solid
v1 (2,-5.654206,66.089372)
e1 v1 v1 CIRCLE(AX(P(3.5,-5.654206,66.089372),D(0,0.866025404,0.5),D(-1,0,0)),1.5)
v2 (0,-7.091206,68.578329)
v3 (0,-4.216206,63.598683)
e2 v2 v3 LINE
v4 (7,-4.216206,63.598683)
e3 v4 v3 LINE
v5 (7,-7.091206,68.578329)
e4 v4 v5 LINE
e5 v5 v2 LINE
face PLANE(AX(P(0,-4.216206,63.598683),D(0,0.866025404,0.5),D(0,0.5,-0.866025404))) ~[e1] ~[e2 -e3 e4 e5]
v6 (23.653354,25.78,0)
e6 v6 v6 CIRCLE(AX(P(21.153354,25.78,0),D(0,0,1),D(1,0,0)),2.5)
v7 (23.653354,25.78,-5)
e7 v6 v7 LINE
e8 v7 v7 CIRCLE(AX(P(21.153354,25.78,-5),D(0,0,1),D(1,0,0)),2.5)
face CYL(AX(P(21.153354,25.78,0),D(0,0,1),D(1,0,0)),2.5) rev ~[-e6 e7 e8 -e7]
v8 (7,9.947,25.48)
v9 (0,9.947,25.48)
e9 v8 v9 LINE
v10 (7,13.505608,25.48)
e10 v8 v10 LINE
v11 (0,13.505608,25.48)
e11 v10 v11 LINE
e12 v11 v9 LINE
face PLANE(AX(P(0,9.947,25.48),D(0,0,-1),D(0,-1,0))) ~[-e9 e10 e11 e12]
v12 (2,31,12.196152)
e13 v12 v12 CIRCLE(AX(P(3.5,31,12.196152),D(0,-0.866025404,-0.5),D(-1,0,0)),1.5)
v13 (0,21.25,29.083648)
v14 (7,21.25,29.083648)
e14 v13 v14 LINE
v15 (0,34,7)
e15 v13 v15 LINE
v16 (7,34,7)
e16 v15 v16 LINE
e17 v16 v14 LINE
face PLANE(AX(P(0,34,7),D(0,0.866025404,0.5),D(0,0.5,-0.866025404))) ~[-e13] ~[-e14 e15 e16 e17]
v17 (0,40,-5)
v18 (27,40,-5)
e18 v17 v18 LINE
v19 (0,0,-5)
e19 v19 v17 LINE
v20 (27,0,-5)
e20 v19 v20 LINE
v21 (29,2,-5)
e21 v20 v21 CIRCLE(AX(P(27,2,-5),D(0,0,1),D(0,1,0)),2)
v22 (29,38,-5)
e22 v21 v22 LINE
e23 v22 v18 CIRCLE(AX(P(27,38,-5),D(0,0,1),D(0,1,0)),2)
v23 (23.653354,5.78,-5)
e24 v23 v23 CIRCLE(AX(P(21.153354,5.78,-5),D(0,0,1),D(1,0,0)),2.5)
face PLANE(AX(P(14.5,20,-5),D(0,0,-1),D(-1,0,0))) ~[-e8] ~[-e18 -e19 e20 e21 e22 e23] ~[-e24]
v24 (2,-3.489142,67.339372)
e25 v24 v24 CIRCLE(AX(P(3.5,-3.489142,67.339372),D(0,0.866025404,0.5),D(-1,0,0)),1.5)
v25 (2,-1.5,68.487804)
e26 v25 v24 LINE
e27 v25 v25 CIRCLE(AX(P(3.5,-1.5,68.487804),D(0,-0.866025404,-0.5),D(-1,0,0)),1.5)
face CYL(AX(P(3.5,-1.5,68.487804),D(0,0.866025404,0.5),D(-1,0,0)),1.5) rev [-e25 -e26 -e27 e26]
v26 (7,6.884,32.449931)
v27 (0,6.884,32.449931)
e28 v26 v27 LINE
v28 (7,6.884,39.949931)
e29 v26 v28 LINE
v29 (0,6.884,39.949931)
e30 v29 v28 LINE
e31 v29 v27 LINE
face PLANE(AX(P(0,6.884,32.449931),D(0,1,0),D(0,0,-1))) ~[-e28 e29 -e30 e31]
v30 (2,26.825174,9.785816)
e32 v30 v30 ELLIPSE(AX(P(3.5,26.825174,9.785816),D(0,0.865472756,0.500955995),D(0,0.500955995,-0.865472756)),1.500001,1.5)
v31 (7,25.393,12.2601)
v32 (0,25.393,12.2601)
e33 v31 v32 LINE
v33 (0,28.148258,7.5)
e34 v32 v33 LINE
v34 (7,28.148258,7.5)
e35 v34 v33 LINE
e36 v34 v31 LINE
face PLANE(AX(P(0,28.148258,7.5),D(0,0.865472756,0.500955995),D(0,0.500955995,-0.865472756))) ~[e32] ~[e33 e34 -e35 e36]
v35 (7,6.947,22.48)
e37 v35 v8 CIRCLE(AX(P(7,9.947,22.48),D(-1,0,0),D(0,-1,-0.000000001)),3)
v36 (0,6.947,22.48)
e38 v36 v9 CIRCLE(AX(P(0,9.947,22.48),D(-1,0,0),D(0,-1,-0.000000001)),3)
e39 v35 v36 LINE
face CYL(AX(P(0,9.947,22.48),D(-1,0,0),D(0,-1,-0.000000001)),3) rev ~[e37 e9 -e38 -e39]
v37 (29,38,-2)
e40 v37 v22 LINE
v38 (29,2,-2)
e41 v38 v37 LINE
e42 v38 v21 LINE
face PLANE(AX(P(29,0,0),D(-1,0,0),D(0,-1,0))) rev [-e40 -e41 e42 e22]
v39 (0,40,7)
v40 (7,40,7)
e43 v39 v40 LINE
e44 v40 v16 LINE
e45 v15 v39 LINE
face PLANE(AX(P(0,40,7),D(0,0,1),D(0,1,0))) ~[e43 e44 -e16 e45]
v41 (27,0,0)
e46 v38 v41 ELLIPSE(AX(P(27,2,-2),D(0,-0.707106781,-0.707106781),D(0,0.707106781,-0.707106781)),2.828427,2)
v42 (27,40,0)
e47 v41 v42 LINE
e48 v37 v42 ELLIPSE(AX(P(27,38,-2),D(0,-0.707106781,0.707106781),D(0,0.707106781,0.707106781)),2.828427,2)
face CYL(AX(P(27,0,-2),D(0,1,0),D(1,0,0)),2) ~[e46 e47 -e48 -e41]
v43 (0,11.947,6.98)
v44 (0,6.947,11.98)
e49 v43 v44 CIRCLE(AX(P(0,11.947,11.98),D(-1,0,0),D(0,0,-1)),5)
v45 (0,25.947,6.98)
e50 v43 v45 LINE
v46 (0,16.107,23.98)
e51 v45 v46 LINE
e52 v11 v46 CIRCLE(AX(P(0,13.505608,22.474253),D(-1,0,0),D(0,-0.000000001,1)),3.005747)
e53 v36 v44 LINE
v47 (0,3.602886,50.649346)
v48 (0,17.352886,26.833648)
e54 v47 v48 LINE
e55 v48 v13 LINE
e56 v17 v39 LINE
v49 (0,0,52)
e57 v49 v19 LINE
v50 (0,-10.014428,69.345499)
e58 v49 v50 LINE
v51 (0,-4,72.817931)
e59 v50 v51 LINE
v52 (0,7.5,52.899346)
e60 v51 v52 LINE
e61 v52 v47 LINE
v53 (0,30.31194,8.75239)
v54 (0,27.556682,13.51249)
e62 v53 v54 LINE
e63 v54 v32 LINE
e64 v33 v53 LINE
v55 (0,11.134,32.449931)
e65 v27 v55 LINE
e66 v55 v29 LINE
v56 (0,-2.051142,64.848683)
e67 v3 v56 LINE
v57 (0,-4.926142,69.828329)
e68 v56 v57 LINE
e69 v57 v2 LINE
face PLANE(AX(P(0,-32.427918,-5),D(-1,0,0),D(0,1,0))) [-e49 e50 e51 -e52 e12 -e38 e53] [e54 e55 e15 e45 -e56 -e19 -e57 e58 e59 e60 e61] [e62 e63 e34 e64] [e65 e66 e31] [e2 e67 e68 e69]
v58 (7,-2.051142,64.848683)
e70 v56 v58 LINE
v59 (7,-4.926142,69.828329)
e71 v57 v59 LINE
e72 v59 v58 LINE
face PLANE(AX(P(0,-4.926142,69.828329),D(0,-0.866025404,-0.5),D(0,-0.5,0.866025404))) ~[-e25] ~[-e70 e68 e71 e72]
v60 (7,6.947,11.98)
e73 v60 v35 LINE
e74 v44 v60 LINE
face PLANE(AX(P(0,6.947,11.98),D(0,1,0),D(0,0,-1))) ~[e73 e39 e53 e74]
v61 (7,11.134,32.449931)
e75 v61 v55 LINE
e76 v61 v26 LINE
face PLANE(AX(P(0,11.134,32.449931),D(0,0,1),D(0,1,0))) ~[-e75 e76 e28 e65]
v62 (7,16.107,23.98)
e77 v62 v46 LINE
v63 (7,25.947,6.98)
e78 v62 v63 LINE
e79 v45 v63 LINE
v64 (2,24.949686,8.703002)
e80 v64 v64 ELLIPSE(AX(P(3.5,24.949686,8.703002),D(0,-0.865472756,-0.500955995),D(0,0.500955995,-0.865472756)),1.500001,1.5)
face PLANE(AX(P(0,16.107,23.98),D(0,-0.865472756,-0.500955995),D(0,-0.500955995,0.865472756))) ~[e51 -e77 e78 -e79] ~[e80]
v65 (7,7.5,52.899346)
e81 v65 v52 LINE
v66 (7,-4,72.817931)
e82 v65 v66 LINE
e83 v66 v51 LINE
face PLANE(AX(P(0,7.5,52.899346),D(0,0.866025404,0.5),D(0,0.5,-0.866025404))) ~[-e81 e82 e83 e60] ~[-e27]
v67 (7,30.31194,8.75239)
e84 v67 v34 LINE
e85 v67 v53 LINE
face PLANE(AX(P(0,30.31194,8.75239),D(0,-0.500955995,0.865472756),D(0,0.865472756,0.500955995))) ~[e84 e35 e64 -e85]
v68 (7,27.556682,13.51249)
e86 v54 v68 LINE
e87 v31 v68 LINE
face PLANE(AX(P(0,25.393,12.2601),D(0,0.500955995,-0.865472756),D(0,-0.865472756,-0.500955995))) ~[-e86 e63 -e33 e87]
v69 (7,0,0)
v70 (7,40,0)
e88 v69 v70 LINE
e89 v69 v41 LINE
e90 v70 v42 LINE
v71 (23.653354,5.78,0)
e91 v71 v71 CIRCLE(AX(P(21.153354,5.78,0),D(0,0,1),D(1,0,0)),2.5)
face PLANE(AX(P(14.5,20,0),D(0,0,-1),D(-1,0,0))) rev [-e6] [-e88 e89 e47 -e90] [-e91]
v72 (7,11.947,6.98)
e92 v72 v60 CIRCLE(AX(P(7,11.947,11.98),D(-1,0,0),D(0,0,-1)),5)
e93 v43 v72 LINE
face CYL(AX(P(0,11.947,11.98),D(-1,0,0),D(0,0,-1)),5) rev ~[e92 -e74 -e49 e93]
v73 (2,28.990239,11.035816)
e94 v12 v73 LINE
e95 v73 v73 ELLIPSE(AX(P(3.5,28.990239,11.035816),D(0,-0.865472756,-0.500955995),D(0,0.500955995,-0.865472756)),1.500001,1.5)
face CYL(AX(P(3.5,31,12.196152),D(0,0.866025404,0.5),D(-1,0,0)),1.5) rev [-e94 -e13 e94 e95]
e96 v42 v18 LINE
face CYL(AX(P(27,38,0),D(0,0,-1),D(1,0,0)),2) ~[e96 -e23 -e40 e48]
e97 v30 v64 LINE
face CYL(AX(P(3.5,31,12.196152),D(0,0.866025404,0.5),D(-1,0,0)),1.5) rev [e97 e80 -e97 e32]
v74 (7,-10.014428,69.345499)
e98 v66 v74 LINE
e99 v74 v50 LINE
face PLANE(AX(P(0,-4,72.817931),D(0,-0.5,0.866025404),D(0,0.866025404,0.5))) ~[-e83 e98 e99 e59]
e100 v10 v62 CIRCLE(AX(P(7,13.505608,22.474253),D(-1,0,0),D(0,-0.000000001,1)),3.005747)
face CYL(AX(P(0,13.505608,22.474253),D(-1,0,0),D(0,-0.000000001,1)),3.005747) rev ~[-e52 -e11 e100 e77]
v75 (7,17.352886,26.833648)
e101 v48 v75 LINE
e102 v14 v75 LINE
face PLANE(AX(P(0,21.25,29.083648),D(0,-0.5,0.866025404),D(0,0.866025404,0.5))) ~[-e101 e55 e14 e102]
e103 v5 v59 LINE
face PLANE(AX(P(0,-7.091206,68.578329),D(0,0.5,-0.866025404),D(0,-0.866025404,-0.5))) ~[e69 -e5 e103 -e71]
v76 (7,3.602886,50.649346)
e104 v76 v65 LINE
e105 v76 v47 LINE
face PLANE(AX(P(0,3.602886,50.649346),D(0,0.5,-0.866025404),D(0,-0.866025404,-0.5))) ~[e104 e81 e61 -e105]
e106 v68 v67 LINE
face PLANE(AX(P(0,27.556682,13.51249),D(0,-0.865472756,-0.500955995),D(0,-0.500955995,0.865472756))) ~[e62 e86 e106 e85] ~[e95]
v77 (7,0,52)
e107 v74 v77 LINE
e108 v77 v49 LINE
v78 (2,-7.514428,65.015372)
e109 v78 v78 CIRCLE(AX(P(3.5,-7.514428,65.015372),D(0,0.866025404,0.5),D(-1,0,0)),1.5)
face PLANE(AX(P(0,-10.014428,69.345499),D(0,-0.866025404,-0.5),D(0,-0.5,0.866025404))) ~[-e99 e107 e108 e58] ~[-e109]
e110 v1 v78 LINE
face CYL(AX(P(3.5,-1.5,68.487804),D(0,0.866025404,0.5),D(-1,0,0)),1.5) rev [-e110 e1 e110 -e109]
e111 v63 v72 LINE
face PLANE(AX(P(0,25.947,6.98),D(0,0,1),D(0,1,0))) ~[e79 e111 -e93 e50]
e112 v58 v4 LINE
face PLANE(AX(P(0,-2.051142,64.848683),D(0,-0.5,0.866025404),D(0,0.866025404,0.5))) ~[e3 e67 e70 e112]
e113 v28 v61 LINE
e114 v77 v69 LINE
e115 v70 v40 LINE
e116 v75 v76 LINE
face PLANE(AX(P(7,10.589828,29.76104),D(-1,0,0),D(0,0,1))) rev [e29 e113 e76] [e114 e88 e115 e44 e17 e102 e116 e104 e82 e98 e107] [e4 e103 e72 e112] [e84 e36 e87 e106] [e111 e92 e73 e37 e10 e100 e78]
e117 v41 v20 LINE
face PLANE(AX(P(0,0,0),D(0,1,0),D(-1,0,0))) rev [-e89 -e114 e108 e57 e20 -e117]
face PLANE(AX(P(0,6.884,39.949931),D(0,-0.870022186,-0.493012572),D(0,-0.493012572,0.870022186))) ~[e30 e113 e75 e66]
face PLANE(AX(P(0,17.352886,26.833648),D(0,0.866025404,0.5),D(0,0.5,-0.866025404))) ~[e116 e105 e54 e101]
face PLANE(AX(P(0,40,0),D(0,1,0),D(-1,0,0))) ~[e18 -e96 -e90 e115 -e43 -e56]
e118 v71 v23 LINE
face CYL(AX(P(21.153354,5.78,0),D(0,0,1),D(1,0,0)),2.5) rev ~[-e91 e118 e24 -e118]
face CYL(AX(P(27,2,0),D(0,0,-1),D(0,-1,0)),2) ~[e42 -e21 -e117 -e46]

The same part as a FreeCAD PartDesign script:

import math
import FreeCAD as App
import Part
import Sketcher

V = App.Vector
Q = App.Units.Quantity


def edges_at(feature, points):
    """Names of the edges that pass closest to the given points."""
    edges = feature.Shape.Edges
    near = lambda p: min(range(len(edges)), key=lambda i: edges[i].distToShape(Part.Vertex(*p))[0])
    return sorted({f"Edge{near(p) + 1}" for p in points})


def add_polygon(sketch, points):
    """Adds a closed chain of lines whose ends are joined by coincident constraints."""
    first, n = sketch.GeometryCount, len(points)
    for a, b in zip(points, points[1:] + points[:1]):
        sketch.addGeometry(Part.LineSegment(App.Vector(*a, 0), App.Vector(*b, 0)), False)
    for i in range(n):
        sketch.addConstraint(Sketcher.Constraint("Coincident", first + i, 2, first + (i + 1) % n, 1))

doc = App.newDocument("Part")
params = doc.addObject("Spreadsheet::Sheet", "Params")
for row, (alias, value) in enumerate([
    ("sketch1_radius", "5 mm"),
    ("sketch1_radius2", "3 mm"),
    ("sketch1_width", "40 mm"),
    ("sketch1_width2", "6 mm"),
    ("sketch1_width3", "14 mm"),
    ("pad1_length", "7 mm"),
    ("sketch2_diameter", "5 mm"),
    ("sketch2_width", "29 mm"),
    ("sketch2_height", "40 mm"),
    ("pad2_length", "5 mm"),
    ("fillet_radius", "2 mm"),
    ("sketch3_diameter", "3 mm"),
    ("pocket1_length", "7.5 mm"),
    ("fillet2_radius", "2 mm"),
], start=1):
    params.set(f"A{row}", alias)
    params.set(f"B{row}", "=" + value)
    params.setAlias(f"B{row}", alias)

body = doc.addObject("PartDesign::Body", "Body")

# Sketch on YZ plane
sketch1 = doc.addObject("Sketcher::SketchObject", "Sketch")
body.addObject(sketch1)
sketch1.AttachmentSupport = (doc.YZ_Plane, [""])
sketch1.MapMode = "FlatFace"
add_polygon(sketch1, [(0, 0), (40, 0), (40, 7), (34, 7), (21.2, 29.1), (17.4, 26.8), (3.6, 50.6), (7.5, 52.9), (-4, 72.8), (-10, 69.3), (0, 52)])  # lines 0-10
add_polygon(sketch1, [(-7.1, 68.6), (-4.9, 69.8), (-2.1, 64.8), (-4.2, 63.6)])  # lines 11-14
add_polygon(sketch1, [(6.9, 32.4), (6.9, 39.9), (11.1, 32.4)])  # lines 15-17
sketch1.addGeometry(Part.LineSegment(V(16.1, 24, 0), V(25.9, 7, 0)), False)  # 18
sketch1.addGeometry(Part.LineSegment(V(25.9, 7, 0), V(11.9, 7, 0)), False)  # 19
sketch1.addGeometry(Part.ArcOfCircle(Part.Circle(V(11.9, 12, 0), V(0, 0, 1), 5), math.radians(180), math.radians(270)), False)  # 20
sketch1.addGeometry(Part.LineSegment(V(6.9, 12, 0), V(6.9, 22.5, 0)), False)  # 21
sketch1.addGeometry(Part.ArcOfCircle(Part.Circle(V(9.9, 22.5, 0), V(0, 0, 1), 3), math.radians(90), math.radians(180)), False)  # 22
sketch1.addGeometry(Part.LineSegment(V(9.9, 25.5, 0), V(13.5, 25.5, 0)), False)  # 23
sketch1.addGeometry(Part.ArcOfCircle(Part.Circle(V(13.5, 22.5, 0), V(0, 0, 1), 3), math.radians(30), math.radians(90)), False)  # 24
add_polygon(sketch1, [(25.4, 12.3), (27.6, 13.5), (30.3, 8.8), (28.1, 7.5)])  # lines 25-28
sketch1.addConstraint([
    Sketcher.Constraint("Coincident", 18, 2, 19, 1),
    Sketcher.Constraint("Tangent", 19, 2, 20, 2),
    Sketcher.Constraint("Tangent", 20, 1, 21, 1),
    Sketcher.Constraint("Tangent", 21, 2, 22, 2),
    Sketcher.Constraint("Tangent", 22, 1, 23, 1),
    Sketcher.Constraint("Tangent", 23, 2, 24, 2),
    Sketcher.Constraint("Tangent", 24, 1, 18, 1),
    Sketcher.Constraint("Horizontal", 0),
    Sketcher.Constraint("Vertical", 1),
    Sketcher.Constraint("Horizontal", 2),
    Sketcher.Constraint("Vertical", 10),
    Sketcher.Constraint("Vertical", 15),
    Sketcher.Constraint("Horizontal", 17),
    Sketcher.Constraint("Horizontal", 19),
    Sketcher.Constraint("Vertical", 21),
    Sketcher.Constraint("Horizontal", 23),
    Sketcher.Constraint("Coincident", 10, 2, -1, 1),
    Sketcher.Constraint("Perpendicular", 3, 4),
    Sketcher.Constraint("Perpendicular", 4, 5),
    Sketcher.Constraint("Perpendicular", 5, 6),
    Sketcher.Constraint("Perpendicular", 6, 7),
    Sketcher.Constraint("Perpendicular", 7, 8),
    Sketcher.Constraint("Perpendicular", 8, 9),
    Sketcher.Constraint("Perpendicular", 9, 11),
    Sketcher.Constraint("Perpendicular", 11, 12),
    Sketcher.Constraint("Perpendicular", 12, 13),
    Sketcher.Constraint("Perpendicular", 13, 14),
    Sketcher.Constraint("Perpendicular", 18, 25),
    Sketcher.Constraint("Perpendicular", 25, 26),
    Sketcher.Constraint("Perpendicular", 26, 27),
    Sketcher.Constraint("Perpendicular", 27, 28),
    Sketcher.Constraint("Equal", 4, 6),
    Sketcher.Constraint("Equal", 13, 25),
    Sketcher.Constraint("Radius", 20, 5.0),
    Sketcher.Constraint("Radius", 22, 3.0),
    Sketcher.Constraint("DistanceX", 0, 1, 0, 2, 40.0),
    Sketcher.Constraint("DistanceX", 2, 2, 2, 1, 6.0),
    Sketcher.Constraint("DistanceX", 19, 2, 19, 1, 14.0),
    Sketcher.Constraint("DistanceY", 1, 1, 1, 2, 7.0),
    Sketcher.Constraint("DistanceY", 10, 2, 10, 1, 52.0),
    Sketcher.Constraint("Angle", 3, Q("120 deg")),
    Sketcher.Constraint("Distance", 7, 23.0),
    Sketcher.Constraint("DistanceY", 15, 1, 15, 2, 7.5),
    Sketcher.Constraint("DistanceY", 21, 1, 21, 2, 10.5),
    Sketcher.Constraint("DistanceX", 7, 2, -1, 1, 4.0),
    Sketcher.Constraint("Distance", 3, 25.5),
    Sketcher.Constraint("Distance", 4, 4.5),
    Sketcher.Constraint("Distance", 11, 2.5),
    Sketcher.Constraint("Distance", 26, 5.5),
    Sketcher.Constraint("DistanceX", 17, 2, 17, 1, 4.25),
    Sketcher.Constraint("DistanceY", -1, 1, 27, 2, 7.5),
    Sketcher.Constraint("DistanceY", 24, 1, 23, 2, 1.5),
    Sketcher.Constraint("Distance", 12, 5.75),
    Sketcher.Constraint("DistanceY", -1, 1, 20, 3, 11.98),
    Sketcher.Constraint("DistanceX", 22, 1, 24, 1, 6.16),
    Sketcher.Constraint("DistanceX", -1, 1, 20, 3, 11.947),
    Sketcher.Constraint("DistanceX", -1, 1, 15, 2, 6.884),
    Sketcher.Constraint("DistanceX", -1, 1, 28, 2, 25.393),
    Sketcher.Constraint("DistanceY", 11, 2, 7, 2, 2.989602),
    Sketcher.Constraint("DistanceY", -1, 1, 15, 2, 39.949931),
    Sketcher.Constraint("DistanceX", 11, 2, 5, 2, 8.529028),
])
sketch1.setExpression("Constraints[55]", "Params.sketch1_radius")
sketch1.setExpression("Constraints[56]", "Params.sketch1_radius2")
sketch1.setExpression("Constraints[57]", "Params.sketch1_width")
sketch1.setExpression("Constraints[58]", "Params.sketch1_width2")
sketch1.setExpression("Constraints[59]", "Params.sketch1_width3")
pad1 = doc.addObject("PartDesign::Pad", "Pad")
body.addObject(pad1)
pad1.Profile = sketch1
pad1.setExpression("Length", "Params.pad1_length")
pad1.Reversed = True

# Sketch on XY plane
sketch2 = doc.addObject("Sketcher::SketchObject", "Sketch001")
body.addObject(sketch2)
sketch2.AttachmentSupport = (doc.XY_Plane, [""])
sketch2.MapMode = "FlatFace"
add_polygon(sketch2, [(0, 40), (0, 0), (-29, 0), (-29, 40)])  # lines 0-3
sketch2.addGeometry(Part.Circle(V(-21.2, 5.8, 0), V(0, 0, 1), 2.5), False)  # 4
sketch2.addGeometry(Part.Circle(V(-21.2, 25.8, 0), V(0, 0, 1), 2.5), False)  # 5
sketch2.addConstraint([
    Sketcher.Constraint("Vertical", 0),
    Sketcher.Constraint("Horizontal", 1),
    Sketcher.Constraint("Vertical", 2),
    Sketcher.Constraint("Horizontal", 3),
    Sketcher.Constraint("Coincident", 0, 2, -1, 1),
    Sketcher.Constraint("Equal", 4, 5),
    Sketcher.Constraint("Vertical", 4, 3, 5, 3),
    Sketcher.Constraint("Diameter", 4, 5.0),
    Sketcher.Constraint("DistanceX", 1, 2, 1, 1, 29.0),
    Sketcher.Constraint("DistanceY", 0, 2, 0, 1, 40.0),
    Sketcher.Constraint("DistanceY", 4, 3, 5, 3, 20.0),
    Sketcher.Constraint("DistanceY", -1, 1, 4, 3, 5.78),
    Sketcher.Constraint("DistanceX", 4, 3, -1, 1, 21.153354),
])
sketch2.setExpression("Constraints[11]", "Params.sketch2_diameter")
sketch2.setExpression("Constraints[12]", "Params.sketch2_width")
sketch2.setExpression("Constraints[13]", "Params.sketch2_height")
pad2 = doc.addObject("PartDesign::Pad", "Pad001")
body.addObject(pad2)
pad2.Profile = sketch2
pad2.setExpression("Length", "Params.pad2_length")
pad2.Reversed = True
doc.recompute()

fillet = doc.addObject("PartDesign::Fillet", "Fillet")
body.addObject(fillet)
fillet.Base = (pad2, edges_at(pad2, [(-29, 20, 0), (-29, 0, -2.5), (-29, 40, -2.5)]))
fillet.setExpression("Radius", "Params.fillet_radius")

# Sketch on an angled plane
sketch3 = doc.addObject("Sketcher::SketchObject", "Sketch002")
body.addObject(sketch3)
sketch3.Placement = App.Placement(V(0, 28.531089, 16.472432), App.Rotation(V(1, 0, 0), V(0, 0.5, -0.866025404), V(0, 0.866025404, 0.5), "ZXY"))
sketch3.addGeometry([
    Part.Circle(V(-3.5, 4.9, 0), V(0, 0, 1), 1.5),
    Part.Circle(V(-3.5, -60.1, 0), V(0, 0, 1), 1.5),
], False)
sketch3.addConstraint([
    Sketcher.Constraint("Equal", 0, 1),
    Sketcher.Constraint("Vertical", 0, 3, 1, 3),
    Sketcher.Constraint("Diameter", 0, 3.0),
    Sketcher.Constraint("DistanceY", 1, 3, 0, 3, 65.0),
    Sketcher.Constraint("DistanceX", 0, 3, -1, 1, 3.5),
    Sketcher.Constraint("DistanceY", -1, 1, 0, 3, 4.937822),
])
sketch3.setExpression("Constraints[2]", "Params.sketch3_diameter")
pocket1 = doc.addObject("PartDesign::Pocket", "Pocket")
body.addObject(pocket1)
pocket1.Profile = sketch3
pocket1.setExpression("Length", "Params.pocket1_length")
doc.recompute()

mirrored = doc.addObject("PartDesign::Mirrored", "Mirrored")
body.addObject(mirrored)
mirrored.Originals = [pad1, pad2, pocket1]
mirrored.MirrorPlane = (doc.YZ_Plane, [""])
body.Tip = mirrored
doc.recompute()

fillet2 = doc.addObject("PartDesign::Fillet", "Fillet001")
body.addObject(fillet2)
fillet2.Base = (mirrored, edges_at(mirrored, [(29, 20, 0), (29, 0, -2.5), (29, 40, -2.5)]))
fillet2.setExpression("Radius", "Params.fillet2_radius")

# Sketch on XY plane
sketch4 = doc.addObject("Sketcher::SketchObject", "Sketch003")
body.addObject(sketch4)
sketch4.AttachmentSupport = (doc.XY_Plane, [""])
sketch4.MapMode = "FlatFace"
sketch4.AttachmentOffset = App.Placement(V(0, 0, -5), App.Rotation())
add_polygon(sketch4, [(0, 40), (0, -32), (-37, -32), (-37, 40)])  # lines 0-3
sketch4.addConstraint([
    Sketcher.Constraint("Vertical", 0),
    Sketcher.Constraint("Horizontal", 1),
    Sketcher.Constraint("Vertical", 2),
    Sketcher.Constraint("Horizontal", 3),
    Sketcher.Constraint("PointOnObject", 0, 2, -2),
    Sketcher.Constraint("DistanceY", -1, 1, 2, 2, 40.0),
    Sketcher.Constraint("DistanceY", 0, 2, 0, 1, 72.427918),
    Sketcher.Constraint("DistanceX", 1, 2, 1, 1, 36.671323),
])
pocket2 = doc.addObject("PartDesign::Pocket", "Pocket001")
body.addObject(pocket2)
pocket2.Profile = sketch4
pocket2.Type = "ThroughAll"
pocket2.Reversed = True

doc.recompute()
